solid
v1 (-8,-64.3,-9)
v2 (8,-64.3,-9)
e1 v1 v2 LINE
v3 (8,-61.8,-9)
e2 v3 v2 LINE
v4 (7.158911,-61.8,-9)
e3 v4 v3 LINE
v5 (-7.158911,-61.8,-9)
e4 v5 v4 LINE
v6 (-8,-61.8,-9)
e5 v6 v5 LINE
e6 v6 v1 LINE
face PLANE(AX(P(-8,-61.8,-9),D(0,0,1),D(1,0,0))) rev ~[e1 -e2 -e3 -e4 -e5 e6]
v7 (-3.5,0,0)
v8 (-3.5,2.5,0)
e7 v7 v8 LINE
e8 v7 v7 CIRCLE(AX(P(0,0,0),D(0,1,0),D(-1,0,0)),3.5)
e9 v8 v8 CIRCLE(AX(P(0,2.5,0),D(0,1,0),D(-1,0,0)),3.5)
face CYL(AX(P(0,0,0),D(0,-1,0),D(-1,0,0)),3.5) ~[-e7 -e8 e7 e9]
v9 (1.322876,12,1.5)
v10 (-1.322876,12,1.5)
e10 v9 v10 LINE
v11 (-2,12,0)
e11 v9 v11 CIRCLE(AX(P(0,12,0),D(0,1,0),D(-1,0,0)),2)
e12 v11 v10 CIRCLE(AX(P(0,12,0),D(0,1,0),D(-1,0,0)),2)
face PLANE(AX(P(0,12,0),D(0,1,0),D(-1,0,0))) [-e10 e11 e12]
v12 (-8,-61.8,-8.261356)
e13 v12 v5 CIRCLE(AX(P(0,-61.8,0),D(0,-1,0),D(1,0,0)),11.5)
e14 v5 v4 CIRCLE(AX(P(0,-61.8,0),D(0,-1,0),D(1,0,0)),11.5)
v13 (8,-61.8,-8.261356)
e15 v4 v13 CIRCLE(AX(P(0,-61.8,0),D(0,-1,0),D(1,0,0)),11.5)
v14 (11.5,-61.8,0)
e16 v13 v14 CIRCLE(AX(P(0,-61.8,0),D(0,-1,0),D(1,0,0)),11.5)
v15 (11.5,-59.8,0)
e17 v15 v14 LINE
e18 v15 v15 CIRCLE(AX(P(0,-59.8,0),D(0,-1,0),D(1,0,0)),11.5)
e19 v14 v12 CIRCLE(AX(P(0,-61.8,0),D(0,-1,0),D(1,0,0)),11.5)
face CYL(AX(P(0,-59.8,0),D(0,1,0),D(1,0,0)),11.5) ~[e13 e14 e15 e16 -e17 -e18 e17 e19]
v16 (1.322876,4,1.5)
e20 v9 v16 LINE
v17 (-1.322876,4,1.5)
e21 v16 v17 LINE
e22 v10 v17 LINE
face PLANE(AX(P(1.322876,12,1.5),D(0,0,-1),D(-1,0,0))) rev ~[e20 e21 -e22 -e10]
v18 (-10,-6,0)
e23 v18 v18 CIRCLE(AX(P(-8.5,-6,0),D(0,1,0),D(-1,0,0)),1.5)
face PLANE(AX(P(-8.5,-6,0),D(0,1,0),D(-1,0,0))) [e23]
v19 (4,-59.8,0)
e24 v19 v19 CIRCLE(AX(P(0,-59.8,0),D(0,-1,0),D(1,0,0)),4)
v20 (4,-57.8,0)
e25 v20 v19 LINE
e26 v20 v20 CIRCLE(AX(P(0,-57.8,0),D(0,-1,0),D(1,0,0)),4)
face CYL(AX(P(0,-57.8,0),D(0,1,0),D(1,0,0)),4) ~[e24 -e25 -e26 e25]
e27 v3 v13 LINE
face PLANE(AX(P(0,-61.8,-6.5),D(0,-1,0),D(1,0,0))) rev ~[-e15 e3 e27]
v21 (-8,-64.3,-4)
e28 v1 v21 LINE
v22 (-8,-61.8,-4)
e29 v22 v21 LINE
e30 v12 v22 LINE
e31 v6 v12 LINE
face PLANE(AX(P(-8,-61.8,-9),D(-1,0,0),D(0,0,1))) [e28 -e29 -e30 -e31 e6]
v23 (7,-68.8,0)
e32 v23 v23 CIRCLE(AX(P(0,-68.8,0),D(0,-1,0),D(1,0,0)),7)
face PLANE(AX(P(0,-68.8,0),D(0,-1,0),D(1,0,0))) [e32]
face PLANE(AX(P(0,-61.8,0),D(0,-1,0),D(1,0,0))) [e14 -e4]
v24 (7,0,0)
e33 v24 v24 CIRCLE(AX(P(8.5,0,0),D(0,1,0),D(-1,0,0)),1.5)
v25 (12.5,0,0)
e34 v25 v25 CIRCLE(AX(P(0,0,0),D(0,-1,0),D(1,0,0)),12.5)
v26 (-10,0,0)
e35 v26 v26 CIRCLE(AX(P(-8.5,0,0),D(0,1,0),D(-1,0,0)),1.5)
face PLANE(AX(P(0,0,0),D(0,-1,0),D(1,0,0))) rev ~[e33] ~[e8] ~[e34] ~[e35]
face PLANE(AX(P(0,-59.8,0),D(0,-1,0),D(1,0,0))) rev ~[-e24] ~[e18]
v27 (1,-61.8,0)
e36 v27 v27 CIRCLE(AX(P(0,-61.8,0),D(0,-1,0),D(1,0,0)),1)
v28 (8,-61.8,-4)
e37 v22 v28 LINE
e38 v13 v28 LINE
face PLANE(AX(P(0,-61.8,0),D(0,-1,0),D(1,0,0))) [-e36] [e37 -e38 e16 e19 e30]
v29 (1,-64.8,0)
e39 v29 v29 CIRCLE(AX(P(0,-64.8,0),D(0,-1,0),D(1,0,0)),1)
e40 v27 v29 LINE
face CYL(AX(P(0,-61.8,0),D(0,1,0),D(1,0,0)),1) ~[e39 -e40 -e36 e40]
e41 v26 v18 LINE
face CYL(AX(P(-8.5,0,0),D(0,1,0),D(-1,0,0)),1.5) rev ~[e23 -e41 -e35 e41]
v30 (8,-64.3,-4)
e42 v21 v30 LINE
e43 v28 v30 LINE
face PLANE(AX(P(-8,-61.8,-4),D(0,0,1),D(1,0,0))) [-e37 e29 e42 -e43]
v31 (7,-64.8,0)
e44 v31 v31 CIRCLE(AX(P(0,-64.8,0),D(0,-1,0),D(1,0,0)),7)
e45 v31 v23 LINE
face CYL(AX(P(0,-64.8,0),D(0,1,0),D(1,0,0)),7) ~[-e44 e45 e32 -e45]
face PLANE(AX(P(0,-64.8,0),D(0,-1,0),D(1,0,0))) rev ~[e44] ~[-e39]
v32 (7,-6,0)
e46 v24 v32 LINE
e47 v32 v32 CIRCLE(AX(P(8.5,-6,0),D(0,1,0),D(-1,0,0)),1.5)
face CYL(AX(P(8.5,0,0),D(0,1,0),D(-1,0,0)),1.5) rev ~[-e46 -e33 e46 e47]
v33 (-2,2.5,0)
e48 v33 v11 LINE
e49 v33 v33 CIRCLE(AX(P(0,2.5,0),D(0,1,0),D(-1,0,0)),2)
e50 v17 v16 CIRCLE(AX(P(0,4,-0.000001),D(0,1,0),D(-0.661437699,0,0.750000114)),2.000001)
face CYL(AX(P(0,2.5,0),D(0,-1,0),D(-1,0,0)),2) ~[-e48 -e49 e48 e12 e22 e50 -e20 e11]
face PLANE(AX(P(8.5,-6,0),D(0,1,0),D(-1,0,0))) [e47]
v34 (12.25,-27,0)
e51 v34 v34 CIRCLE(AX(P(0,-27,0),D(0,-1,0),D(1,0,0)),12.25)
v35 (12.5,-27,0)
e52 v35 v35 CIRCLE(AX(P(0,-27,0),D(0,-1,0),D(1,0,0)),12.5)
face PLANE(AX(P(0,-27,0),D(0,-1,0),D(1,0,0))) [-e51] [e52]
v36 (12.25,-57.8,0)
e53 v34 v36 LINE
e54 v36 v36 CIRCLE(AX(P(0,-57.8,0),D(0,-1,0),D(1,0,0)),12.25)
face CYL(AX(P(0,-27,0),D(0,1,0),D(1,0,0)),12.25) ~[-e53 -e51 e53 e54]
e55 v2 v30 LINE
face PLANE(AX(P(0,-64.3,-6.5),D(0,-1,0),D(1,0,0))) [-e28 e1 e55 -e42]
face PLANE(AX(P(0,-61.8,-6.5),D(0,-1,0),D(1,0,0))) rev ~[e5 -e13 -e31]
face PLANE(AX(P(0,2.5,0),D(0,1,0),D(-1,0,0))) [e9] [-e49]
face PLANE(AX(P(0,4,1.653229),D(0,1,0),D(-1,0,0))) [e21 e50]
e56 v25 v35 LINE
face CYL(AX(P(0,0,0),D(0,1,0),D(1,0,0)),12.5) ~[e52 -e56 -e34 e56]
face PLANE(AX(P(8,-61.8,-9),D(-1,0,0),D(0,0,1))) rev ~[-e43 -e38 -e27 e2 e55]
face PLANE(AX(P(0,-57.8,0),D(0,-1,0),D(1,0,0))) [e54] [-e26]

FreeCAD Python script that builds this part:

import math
import FreeCAD as App
import Part
import Sketcher
from FreeCAD import Vector


def add_polygon(sketch, points):
    """Adds a closed chain of lines whose ends are joined by coincident constraints."""
    first, n = sketch.GeometryCount, len(points)
    for a, b in zip(points, points[1:] + points[:1]):
        sketch.addGeometry(Part.LineSegment(App.Vector(*a, 0), App.Vector(*b, 0)), False)
    for i in range(n):
        sketch.addConstraint(Sketcher.Constraint("Coincident", first + i, 2, first + (i + 1) % n, 1))

doc = App.newDocument("Part")
body = doc.addObject("PartDesign::Body", "Body")

# Sketch on XZ plane
sketch1 = body.newObject("Sketcher::SketchObject", "Sketch")
sketch1.AttachmentSupport = (doc.getObject("XZ_Plane"), [""])
sketch1.MapMode = "FlatFace"
sketch1.addGeometry(Part.Circle(Vector(0, 0, 0), Vector(0, 0, 1), 12.5), False)
sketch1.addConstraint([
    Sketcher.Constraint("Coincident", 0, 3, -1, 1),
    Sketcher.Constraint("Diameter", 0, 25.0),
])
pad1 = body.newObject("PartDesign::Pad", "Pad")
pad1.Profile = sketch1
pad1.Length = 27

# Sketch on XZ plane
sketch2 = body.newObject("Sketcher::SketchObject", "Sketch001")
sketch2.AttachmentSupport = (doc.getObject("XZ_Plane"), [""])
sketch2.MapMode = "FlatFace"
sketch2.AttachmentOffset = App.Placement(Vector(0, 0, 27), App.Rotation())
sketch2.addGeometry(Part.Circle(Vector(0, 0, 0), Vector(0, 0, 1), 12.25), False)
sketch2.addConstraint([
    Sketcher.Constraint("Coincident", 0, 3, -1, 1),
    Sketcher.Constraint("Diameter", 0, 24.5),
])
pad2 = body.newObject("PartDesign::Pad", "Pad001")
pad2.Profile = sketch2
pad2.Length = 30.8

# Sketch on XZ plane
sketch3 = body.newObject("Sketcher::SketchObject", "Sketch002")
sketch3.AttachmentSupport = (doc.getObject("XZ_Plane"), [""])
sketch3.MapMode = "FlatFace"
sketch3.addGeometry(Part.Circle(Vector(0, 0, 0), Vector(0, 0, 1), 3.5), False)
sketch3.addConstraint([
    Sketcher.Constraint("Coincident", 0, 3, -1, 1),
    Sketcher.Constraint("Diameter", 0, 7.0),
])
pad3 = body.newObject("PartDesign::Pad", "Pad002")
pad3.Profile = sketch3
pad3.Length = 2.5
pad3.Reversed = True

# Sketch on XZ plane
sketch4 = body.newObject("Sketcher::SketchObject", "Sketch003")
sketch4.AttachmentSupport = (doc.getObject("XZ_Plane"), [""])
sketch4.MapMode = "FlatFace"
sketch4.AttachmentOffset = App.Placement(Vector(0, 0, -2.5), App.Rotation())
sketch4.addGeometry(Part.Circle(Vector(0, 0, 0), Vector(0, 0, 1), 2), False)
sketch4.addConstraint([
    Sketcher.Constraint("Coincident", 0, 3, -1, 1),
    Sketcher.Constraint("Diameter", 0, 4.0),
])
pad4 = body.newObject("PartDesign::Pad", "Pad003")
pad4.Profile = sketch4
pad4.Length = 9.5
pad4.Reversed = True

# Sketch on XZ plane
sketch5 = body.newObject("Sketcher::SketchObject", "Sketch004")
sketch5.AttachmentSupport = (doc.getObject("XZ_Plane"), [""])
sketch5.MapMode = "FlatFace"
sketch5.AttachmentOffset = App.Placement(Vector(0, 0, -12), App.Rotation())
sketch5.addGeometry([
    Part.ArcOfCircle(Part.Circle(Vector(0, -0.000001, 0), Vector(0, 0, 1), 2.000001), math.radians(48.590388), math.radians(131.409612)),
    Part.LineSegment(Vector(1.322876, 1.5, 0), Vector(-1.322876, 1.5, 0)),
], False)
sketch5.addConstraint([
    Sketcher.Constraint("Coincident", 0, 1, 1, 1),
    Sketcher.Constraint("Coincident", 1, 2, 0, 2),
    Sketcher.Constraint("Horizontal", 1),
    Sketcher.Constraint("Coincident", 0, 3, -1, 1),
    Sketcher.Constraint("Radius", 0, 2.000001),
    Sketcher.Constraint("DistanceY", -1, 1, 0, 1, 1.5),
])
pocket1 = body.newObject("PartDesign::Pocket", "Pocket")
pocket1.Profile = sketch5
pocket1.Length = 8
pocket1.Reversed = True

# Sketch on XZ plane
sketch6 = body.newObject("Sketcher::SketchObject", "Sketch005")
sketch6.AttachmentSupport = (doc.getObject("XZ_Plane"), [""])
sketch6.MapMode = "FlatFace"
sketch6.addGeometry([
    Part.Circle(Vector(-8.5, 0, 0), Vector(0, 0, 1), 1.5),
    Part.Circle(Vector(8.5, 0, 0), Vector(0, 0, 1), 1.5),
], False)
sketch6.addConstraint([
    Sketcher.Constraint("Equal", 0, 1),
    Sketcher.Constraint("Symmetric", 0, 3, 1, 3, -1, 1),
    Sketcher.Constraint("PointOnObject", 0, 3, -1),
    Sketcher.Constraint("Diameter", 0, 3.0),
    Sketcher.Constraint("DistanceX", 0, 3, 1, 3, 17.0),
])
pocket2 = body.newObject("PartDesign::Pocket", "Pocket001")
pocket2.Profile = sketch6
pocket2.Length = 6
pocket2.Reversed = True

# Sketch on XZ plane
sketch7 = body.newObject("Sketcher::SketchObject", "Sketch006")
sketch7.AttachmentSupport = (doc.getObject("XZ_Plane"), [""])
sketch7.MapMode = "FlatFace"
sketch7.AttachmentOffset = App.Placement(Vector(0, 0, 57.8), App.Rotation())
sketch7.addGeometry(Part.Circle(Vector(0, 0, 0), Vector(0, 0, 1), 4), False)
sketch7.addConstraint([
    Sketcher.Constraint("Coincident", 0, 3, -1, 1),
    Sketcher.Constraint("Diameter", 0, 8.0),
])
pad5 = body.newObject("PartDesign::Pad", "Pad004")
pad5.Profile = sketch7
pad5.Length = 2

# Sketch on XZ plane
sketch8 = body.newObject("Sketcher::SketchObject", "Sketch007")
sketch8.AttachmentSupport = (doc.getObject("XZ_Plane"), [""])
sketch8.MapMode = "FlatFace"
sketch8.AttachmentOffset = App.Placement(Vector(0, 0, 59.8), App.Rotation())
sketch8.addGeometry(Part.Circle(Vector(0, 0, 0), Vector(0, 0, 1), 11.5), False)
sketch8.addConstraint([
    Sketcher.Constraint("Coincident", 0, 3, -1, 1),
    Sketcher.Constraint("Diameter", 0, 23.0),
])
pad6 = body.newObject("PartDesign::Pad", "Pad005")
pad6.Profile = sketch8
pad6.Length = 2

# Sketch on XZ plane
sketch9 = body.newObject("Sketcher::SketchObject", "Sketch008")
sketch9.AttachmentSupport = (doc.getObject("XZ_Plane"), [""])
sketch9.MapMode = "FlatFace"
sketch9.AttachmentOffset = App.Placement(Vector(0, 0, 61.8), App.Rotation())
sketch9.addGeometry(Part.Circle(Vector(0, 0, 0), Vector(0, 0, 1), 1), False)
sketch9.addConstraint([
    Sketcher.Constraint("Coincident", 0, 3, -1, 1),
    Sketcher.Constraint("Diameter", 0, 2.0),
])
pad7 = body.newObject("PartDesign::Pad", "Pad006")
pad7.Profile = sketch9
pad7.Length = 3

# Sketch on XZ plane
sketch10 = body.newObject("Sketcher::SketchObject", "Sketch009")
sketch10.AttachmentSupport = (doc.getObject("XZ_Plane"), [""])
sketch10.MapMode = "FlatFace"
sketch10.AttachmentOffset = App.Placement(Vector(0, 0, 64.8), App.Rotation())
sketch10.addGeometry(Part.Circle(Vector(0, 0, 0), Vector(0, 0, 1), 7), False)
sketch10.addConstraint([
    Sketcher.Constraint("Coincident", 0, 3, -1, 1),
    Sketcher.Constraint("Diameter", 0, 14.0),
])
pad8 = body.newObject("PartDesign::Pad", "Pad007")
pad8.Profile = sketch10
pad8.Length = 4

# Sketch on XZ plane
sketch11 = body.newObject("Sketcher::SketchObject", "Sketch010")
sketch11.AttachmentSupport = (doc.getObject("XZ_Plane"), [""])
sketch11.MapMode = "FlatFace"
sketch11.AttachmentOffset = App.Placement(Vector(0, 0, 61.8), App.Rotation())
add_polygon(sketch11, [(-8, -4), (-8, -9), (8, -9), (8, -4)])  # lines 0-3
sketch11.addConstraint([
    Sketcher.Constraint("Vertical", 0),
    Sketcher.Constraint("Horizontal", 1),
    Sketcher.Constraint("Vertical", 2),
    Sketcher.Constraint("Horizontal", 3),
    Sketcher.Constraint("DistanceX", 1, 1, 1, 2, 16.0),
    Sketcher.Constraint("DistanceY", 0, 2, 0, 1, 5.0),
    Sketcher.Constraint("DistanceX", 0, 2, -1, 1, 8.0),
    Sketcher.Constraint("DistanceY", 0, 2, -1, 1, 9.0),
])
pad9 = body.newObject("PartDesign::Pad", "Pad008")
pad9.Profile = sketch11
pad9.Length = 2.5

doc.recompute()
